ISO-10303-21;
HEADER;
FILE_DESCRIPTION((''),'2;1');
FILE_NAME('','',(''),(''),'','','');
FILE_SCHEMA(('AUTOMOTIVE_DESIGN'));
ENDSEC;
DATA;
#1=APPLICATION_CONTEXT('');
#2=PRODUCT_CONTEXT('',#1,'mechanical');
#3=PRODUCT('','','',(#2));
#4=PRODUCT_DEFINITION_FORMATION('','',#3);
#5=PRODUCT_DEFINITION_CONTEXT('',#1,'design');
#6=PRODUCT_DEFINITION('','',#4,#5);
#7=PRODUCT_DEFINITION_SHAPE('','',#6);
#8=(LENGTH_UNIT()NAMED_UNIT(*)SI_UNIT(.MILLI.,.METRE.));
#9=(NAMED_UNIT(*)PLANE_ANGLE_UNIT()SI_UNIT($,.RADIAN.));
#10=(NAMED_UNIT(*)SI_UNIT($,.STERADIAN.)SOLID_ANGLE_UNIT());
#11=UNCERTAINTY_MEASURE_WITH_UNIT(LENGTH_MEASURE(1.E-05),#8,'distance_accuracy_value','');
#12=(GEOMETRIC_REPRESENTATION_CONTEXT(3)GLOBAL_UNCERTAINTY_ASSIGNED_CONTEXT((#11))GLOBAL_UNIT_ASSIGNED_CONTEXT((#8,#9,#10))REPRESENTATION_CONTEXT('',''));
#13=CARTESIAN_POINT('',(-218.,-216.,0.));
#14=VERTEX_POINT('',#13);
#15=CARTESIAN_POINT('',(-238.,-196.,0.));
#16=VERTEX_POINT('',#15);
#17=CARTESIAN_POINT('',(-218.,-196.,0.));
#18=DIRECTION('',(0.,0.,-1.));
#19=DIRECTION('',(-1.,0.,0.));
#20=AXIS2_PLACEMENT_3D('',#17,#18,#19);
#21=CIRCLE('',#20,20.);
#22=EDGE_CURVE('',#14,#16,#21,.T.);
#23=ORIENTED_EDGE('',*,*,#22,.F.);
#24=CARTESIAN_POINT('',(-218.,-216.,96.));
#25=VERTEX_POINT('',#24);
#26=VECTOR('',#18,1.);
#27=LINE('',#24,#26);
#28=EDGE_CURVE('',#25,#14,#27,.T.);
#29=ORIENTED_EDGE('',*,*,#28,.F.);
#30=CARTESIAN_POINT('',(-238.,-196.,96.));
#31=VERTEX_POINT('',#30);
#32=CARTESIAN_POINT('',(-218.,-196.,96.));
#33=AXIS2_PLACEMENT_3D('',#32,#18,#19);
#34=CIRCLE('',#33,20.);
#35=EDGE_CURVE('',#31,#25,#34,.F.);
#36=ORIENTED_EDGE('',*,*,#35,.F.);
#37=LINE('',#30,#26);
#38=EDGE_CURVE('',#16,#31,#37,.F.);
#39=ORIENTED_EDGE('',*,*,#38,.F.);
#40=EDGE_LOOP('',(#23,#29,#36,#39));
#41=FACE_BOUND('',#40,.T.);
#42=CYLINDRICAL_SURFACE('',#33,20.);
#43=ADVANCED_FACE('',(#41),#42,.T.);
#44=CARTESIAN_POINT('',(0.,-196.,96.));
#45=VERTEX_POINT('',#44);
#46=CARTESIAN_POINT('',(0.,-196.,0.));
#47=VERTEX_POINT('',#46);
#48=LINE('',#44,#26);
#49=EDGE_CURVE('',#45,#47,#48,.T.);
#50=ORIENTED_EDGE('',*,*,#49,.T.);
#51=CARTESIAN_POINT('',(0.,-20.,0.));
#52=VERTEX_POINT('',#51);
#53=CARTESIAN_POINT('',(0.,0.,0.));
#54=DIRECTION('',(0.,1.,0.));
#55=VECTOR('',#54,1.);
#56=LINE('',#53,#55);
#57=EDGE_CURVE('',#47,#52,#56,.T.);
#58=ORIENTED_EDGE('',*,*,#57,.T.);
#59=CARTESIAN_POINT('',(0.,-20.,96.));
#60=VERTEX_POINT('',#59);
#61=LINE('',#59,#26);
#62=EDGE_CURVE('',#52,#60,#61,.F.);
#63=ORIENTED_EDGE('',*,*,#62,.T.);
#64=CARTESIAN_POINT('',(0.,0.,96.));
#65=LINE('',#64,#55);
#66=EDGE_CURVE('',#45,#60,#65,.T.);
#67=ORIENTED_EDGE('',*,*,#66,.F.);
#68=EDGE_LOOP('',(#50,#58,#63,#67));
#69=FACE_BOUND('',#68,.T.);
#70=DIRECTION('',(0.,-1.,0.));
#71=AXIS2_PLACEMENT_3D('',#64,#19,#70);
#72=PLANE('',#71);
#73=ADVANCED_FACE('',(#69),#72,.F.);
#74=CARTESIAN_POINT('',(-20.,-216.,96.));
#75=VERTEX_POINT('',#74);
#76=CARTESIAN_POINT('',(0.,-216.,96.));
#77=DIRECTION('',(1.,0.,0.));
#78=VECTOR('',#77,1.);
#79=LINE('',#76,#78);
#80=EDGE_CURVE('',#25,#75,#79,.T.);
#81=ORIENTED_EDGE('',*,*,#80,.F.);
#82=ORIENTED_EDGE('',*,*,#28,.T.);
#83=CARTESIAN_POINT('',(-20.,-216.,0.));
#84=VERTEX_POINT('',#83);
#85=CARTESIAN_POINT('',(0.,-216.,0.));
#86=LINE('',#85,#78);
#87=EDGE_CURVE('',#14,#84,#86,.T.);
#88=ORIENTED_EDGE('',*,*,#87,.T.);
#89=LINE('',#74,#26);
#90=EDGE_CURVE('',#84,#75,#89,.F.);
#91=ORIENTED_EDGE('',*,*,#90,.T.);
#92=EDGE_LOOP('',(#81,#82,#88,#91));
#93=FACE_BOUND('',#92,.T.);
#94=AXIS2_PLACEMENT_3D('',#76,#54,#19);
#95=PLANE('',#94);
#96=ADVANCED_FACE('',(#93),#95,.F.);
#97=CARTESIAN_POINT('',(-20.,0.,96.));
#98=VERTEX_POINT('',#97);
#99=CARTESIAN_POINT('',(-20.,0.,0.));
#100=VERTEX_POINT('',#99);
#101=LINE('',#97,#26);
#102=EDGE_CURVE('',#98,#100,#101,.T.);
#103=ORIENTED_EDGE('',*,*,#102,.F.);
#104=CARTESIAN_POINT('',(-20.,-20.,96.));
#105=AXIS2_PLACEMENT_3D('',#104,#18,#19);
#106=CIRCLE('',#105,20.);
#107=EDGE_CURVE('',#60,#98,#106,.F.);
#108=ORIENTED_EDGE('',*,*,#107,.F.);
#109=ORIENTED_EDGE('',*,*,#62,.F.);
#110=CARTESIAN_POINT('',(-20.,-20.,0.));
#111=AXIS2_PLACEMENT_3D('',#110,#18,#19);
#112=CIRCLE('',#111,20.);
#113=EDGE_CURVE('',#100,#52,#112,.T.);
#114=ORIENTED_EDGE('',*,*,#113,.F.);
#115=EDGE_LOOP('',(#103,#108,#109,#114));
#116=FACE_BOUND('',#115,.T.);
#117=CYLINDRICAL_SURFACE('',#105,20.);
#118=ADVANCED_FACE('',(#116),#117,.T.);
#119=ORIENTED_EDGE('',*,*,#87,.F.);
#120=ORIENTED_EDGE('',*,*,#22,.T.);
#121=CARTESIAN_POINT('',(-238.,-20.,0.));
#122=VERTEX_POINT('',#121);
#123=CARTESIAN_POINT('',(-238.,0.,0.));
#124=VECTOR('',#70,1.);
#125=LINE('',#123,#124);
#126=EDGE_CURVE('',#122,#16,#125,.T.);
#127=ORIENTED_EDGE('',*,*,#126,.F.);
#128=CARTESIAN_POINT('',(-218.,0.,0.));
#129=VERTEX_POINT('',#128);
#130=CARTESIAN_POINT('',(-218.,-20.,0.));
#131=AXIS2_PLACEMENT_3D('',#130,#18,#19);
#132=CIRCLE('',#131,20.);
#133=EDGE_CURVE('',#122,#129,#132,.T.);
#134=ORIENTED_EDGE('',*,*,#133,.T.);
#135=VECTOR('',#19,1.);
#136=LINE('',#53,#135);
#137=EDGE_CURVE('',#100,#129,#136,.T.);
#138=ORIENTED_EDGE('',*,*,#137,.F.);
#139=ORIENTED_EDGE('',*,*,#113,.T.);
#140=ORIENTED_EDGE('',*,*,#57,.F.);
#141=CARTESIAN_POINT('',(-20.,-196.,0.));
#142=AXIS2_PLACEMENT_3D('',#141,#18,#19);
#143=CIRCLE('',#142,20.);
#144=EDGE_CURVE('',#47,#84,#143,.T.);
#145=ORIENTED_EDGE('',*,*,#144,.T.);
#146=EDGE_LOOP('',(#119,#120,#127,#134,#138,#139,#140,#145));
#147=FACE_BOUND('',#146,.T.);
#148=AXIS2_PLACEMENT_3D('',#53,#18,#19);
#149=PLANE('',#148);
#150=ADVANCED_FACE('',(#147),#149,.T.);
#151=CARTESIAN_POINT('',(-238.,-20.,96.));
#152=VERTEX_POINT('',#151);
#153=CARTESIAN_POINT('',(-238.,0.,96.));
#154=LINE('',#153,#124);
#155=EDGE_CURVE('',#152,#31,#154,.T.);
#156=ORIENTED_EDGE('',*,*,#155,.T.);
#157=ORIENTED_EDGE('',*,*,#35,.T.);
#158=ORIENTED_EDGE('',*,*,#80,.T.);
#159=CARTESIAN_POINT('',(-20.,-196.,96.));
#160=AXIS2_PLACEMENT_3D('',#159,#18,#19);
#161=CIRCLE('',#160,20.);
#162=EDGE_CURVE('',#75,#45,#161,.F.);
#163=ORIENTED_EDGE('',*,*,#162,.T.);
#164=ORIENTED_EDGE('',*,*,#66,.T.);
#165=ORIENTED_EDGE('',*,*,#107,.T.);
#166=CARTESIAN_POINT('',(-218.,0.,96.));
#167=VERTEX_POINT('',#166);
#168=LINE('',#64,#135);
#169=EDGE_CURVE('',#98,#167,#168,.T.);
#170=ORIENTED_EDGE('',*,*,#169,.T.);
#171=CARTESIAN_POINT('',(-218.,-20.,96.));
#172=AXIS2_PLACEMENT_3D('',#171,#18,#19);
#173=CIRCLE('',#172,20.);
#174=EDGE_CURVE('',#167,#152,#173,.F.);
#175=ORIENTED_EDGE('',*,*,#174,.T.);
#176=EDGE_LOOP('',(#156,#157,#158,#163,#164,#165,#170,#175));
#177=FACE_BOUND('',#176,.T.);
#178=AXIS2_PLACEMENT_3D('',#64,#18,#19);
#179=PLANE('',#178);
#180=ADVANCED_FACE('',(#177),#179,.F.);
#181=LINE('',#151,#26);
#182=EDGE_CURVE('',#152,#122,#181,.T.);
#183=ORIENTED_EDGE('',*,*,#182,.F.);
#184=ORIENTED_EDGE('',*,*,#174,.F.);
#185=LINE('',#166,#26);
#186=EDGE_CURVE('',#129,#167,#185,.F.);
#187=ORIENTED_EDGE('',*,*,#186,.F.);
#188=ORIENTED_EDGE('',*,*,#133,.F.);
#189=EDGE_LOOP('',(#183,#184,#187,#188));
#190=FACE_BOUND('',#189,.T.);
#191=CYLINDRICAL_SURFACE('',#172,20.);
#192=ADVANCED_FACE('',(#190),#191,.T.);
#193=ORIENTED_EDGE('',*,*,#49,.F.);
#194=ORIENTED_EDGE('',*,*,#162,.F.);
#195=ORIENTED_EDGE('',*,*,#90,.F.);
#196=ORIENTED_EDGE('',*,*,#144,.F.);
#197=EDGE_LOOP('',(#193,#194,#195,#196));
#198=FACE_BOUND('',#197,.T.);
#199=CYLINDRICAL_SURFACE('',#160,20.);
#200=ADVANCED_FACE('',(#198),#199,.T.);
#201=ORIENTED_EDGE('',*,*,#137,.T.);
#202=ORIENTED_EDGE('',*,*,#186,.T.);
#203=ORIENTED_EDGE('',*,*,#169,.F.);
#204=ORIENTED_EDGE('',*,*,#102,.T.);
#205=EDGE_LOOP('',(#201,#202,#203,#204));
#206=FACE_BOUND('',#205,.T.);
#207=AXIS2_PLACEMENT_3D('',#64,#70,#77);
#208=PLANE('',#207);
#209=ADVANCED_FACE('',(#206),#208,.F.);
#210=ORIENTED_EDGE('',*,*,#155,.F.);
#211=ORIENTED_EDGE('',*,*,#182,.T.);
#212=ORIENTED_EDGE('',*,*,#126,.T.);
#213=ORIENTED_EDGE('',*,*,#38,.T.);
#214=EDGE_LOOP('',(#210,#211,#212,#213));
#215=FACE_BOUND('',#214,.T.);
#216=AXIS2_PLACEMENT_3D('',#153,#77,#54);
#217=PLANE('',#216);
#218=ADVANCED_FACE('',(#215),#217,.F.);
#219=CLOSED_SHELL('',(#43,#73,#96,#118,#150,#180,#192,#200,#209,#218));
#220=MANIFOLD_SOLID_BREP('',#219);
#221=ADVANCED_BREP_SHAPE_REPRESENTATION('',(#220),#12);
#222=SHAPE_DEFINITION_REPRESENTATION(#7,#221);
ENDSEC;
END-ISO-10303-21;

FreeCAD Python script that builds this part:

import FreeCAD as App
import Part
import Sketcher


def edges_at(feature, points):
    """Names of the edges that pass closest to the given points."""
    edges = feature.Shape.Edges
    near = lambda p: min(range(len(edges)), key=lambda i: edges[i].distToShape(Part.Vertex(*p))[0])
    return sorted({f"Edge{near(p) + 1}" for p in points})


def add_polygon(sketch, points):
    """Adds a closed chain of lines whose ends are joined by coincident constraints."""
    first, n = sketch.GeometryCount, len(points)
    for a, b in zip(points, points[1:] + points[:1]):
        sketch.addGeometry(Part.LineSegment(App.Vector(*a, 0), App.Vector(*b, 0)), False)
    for i in range(n):
        sketch.addConstraint(Sketcher.Constraint("Coincident", first + i, 2, first + (i + 1) % n, 1))

doc = App.newDocument("Part")
body = doc.addObject("PartDesign::Body", "Body")

# Sketch on XY plane
sketch1 = body.newObject("Sketcher::SketchObject", "Sketch")
sketch1.AttachmentSupport = (doc.getObject("XY_Plane"), [""])
sketch1.MapMode = "FlatFace"
add_polygon(sketch1, [(-238, 0), (-238, -216), (0, -216), (0, 0)])  # lines 0-3
sketch1.addConstraint([
    Sketcher.Constraint("Vertical", 0),
    Sketcher.Constraint("Horizontal", 1),
    Sketcher.Constraint("Vertical", 2),
    Sketcher.Constraint("Horizontal", 3),
    Sketcher.Constraint("Coincident", 2, 2, -1, 1),
    Sketcher.Constraint("DistanceX", 1, 1, 1, 2, 238.0),
    Sketcher.Constraint("DistanceY", 0, 2, 0, 1, 216.0),
])
pad1 = body.newObject("PartDesign::Pad", "Pad")
pad1.Profile = sketch1
pad1.Length = 96
doc.recompute()

fillet = body.newObject("PartDesign::Fillet", "Fillet")
fillet.Base = (pad1, edges_at(pad1, [
    (0, -216, 48),
    (-238, -216, 48),
    (-238, 0, 48),
    (0, 0, 48),
]))
fillet.Radius = 20

doc.recompute()
